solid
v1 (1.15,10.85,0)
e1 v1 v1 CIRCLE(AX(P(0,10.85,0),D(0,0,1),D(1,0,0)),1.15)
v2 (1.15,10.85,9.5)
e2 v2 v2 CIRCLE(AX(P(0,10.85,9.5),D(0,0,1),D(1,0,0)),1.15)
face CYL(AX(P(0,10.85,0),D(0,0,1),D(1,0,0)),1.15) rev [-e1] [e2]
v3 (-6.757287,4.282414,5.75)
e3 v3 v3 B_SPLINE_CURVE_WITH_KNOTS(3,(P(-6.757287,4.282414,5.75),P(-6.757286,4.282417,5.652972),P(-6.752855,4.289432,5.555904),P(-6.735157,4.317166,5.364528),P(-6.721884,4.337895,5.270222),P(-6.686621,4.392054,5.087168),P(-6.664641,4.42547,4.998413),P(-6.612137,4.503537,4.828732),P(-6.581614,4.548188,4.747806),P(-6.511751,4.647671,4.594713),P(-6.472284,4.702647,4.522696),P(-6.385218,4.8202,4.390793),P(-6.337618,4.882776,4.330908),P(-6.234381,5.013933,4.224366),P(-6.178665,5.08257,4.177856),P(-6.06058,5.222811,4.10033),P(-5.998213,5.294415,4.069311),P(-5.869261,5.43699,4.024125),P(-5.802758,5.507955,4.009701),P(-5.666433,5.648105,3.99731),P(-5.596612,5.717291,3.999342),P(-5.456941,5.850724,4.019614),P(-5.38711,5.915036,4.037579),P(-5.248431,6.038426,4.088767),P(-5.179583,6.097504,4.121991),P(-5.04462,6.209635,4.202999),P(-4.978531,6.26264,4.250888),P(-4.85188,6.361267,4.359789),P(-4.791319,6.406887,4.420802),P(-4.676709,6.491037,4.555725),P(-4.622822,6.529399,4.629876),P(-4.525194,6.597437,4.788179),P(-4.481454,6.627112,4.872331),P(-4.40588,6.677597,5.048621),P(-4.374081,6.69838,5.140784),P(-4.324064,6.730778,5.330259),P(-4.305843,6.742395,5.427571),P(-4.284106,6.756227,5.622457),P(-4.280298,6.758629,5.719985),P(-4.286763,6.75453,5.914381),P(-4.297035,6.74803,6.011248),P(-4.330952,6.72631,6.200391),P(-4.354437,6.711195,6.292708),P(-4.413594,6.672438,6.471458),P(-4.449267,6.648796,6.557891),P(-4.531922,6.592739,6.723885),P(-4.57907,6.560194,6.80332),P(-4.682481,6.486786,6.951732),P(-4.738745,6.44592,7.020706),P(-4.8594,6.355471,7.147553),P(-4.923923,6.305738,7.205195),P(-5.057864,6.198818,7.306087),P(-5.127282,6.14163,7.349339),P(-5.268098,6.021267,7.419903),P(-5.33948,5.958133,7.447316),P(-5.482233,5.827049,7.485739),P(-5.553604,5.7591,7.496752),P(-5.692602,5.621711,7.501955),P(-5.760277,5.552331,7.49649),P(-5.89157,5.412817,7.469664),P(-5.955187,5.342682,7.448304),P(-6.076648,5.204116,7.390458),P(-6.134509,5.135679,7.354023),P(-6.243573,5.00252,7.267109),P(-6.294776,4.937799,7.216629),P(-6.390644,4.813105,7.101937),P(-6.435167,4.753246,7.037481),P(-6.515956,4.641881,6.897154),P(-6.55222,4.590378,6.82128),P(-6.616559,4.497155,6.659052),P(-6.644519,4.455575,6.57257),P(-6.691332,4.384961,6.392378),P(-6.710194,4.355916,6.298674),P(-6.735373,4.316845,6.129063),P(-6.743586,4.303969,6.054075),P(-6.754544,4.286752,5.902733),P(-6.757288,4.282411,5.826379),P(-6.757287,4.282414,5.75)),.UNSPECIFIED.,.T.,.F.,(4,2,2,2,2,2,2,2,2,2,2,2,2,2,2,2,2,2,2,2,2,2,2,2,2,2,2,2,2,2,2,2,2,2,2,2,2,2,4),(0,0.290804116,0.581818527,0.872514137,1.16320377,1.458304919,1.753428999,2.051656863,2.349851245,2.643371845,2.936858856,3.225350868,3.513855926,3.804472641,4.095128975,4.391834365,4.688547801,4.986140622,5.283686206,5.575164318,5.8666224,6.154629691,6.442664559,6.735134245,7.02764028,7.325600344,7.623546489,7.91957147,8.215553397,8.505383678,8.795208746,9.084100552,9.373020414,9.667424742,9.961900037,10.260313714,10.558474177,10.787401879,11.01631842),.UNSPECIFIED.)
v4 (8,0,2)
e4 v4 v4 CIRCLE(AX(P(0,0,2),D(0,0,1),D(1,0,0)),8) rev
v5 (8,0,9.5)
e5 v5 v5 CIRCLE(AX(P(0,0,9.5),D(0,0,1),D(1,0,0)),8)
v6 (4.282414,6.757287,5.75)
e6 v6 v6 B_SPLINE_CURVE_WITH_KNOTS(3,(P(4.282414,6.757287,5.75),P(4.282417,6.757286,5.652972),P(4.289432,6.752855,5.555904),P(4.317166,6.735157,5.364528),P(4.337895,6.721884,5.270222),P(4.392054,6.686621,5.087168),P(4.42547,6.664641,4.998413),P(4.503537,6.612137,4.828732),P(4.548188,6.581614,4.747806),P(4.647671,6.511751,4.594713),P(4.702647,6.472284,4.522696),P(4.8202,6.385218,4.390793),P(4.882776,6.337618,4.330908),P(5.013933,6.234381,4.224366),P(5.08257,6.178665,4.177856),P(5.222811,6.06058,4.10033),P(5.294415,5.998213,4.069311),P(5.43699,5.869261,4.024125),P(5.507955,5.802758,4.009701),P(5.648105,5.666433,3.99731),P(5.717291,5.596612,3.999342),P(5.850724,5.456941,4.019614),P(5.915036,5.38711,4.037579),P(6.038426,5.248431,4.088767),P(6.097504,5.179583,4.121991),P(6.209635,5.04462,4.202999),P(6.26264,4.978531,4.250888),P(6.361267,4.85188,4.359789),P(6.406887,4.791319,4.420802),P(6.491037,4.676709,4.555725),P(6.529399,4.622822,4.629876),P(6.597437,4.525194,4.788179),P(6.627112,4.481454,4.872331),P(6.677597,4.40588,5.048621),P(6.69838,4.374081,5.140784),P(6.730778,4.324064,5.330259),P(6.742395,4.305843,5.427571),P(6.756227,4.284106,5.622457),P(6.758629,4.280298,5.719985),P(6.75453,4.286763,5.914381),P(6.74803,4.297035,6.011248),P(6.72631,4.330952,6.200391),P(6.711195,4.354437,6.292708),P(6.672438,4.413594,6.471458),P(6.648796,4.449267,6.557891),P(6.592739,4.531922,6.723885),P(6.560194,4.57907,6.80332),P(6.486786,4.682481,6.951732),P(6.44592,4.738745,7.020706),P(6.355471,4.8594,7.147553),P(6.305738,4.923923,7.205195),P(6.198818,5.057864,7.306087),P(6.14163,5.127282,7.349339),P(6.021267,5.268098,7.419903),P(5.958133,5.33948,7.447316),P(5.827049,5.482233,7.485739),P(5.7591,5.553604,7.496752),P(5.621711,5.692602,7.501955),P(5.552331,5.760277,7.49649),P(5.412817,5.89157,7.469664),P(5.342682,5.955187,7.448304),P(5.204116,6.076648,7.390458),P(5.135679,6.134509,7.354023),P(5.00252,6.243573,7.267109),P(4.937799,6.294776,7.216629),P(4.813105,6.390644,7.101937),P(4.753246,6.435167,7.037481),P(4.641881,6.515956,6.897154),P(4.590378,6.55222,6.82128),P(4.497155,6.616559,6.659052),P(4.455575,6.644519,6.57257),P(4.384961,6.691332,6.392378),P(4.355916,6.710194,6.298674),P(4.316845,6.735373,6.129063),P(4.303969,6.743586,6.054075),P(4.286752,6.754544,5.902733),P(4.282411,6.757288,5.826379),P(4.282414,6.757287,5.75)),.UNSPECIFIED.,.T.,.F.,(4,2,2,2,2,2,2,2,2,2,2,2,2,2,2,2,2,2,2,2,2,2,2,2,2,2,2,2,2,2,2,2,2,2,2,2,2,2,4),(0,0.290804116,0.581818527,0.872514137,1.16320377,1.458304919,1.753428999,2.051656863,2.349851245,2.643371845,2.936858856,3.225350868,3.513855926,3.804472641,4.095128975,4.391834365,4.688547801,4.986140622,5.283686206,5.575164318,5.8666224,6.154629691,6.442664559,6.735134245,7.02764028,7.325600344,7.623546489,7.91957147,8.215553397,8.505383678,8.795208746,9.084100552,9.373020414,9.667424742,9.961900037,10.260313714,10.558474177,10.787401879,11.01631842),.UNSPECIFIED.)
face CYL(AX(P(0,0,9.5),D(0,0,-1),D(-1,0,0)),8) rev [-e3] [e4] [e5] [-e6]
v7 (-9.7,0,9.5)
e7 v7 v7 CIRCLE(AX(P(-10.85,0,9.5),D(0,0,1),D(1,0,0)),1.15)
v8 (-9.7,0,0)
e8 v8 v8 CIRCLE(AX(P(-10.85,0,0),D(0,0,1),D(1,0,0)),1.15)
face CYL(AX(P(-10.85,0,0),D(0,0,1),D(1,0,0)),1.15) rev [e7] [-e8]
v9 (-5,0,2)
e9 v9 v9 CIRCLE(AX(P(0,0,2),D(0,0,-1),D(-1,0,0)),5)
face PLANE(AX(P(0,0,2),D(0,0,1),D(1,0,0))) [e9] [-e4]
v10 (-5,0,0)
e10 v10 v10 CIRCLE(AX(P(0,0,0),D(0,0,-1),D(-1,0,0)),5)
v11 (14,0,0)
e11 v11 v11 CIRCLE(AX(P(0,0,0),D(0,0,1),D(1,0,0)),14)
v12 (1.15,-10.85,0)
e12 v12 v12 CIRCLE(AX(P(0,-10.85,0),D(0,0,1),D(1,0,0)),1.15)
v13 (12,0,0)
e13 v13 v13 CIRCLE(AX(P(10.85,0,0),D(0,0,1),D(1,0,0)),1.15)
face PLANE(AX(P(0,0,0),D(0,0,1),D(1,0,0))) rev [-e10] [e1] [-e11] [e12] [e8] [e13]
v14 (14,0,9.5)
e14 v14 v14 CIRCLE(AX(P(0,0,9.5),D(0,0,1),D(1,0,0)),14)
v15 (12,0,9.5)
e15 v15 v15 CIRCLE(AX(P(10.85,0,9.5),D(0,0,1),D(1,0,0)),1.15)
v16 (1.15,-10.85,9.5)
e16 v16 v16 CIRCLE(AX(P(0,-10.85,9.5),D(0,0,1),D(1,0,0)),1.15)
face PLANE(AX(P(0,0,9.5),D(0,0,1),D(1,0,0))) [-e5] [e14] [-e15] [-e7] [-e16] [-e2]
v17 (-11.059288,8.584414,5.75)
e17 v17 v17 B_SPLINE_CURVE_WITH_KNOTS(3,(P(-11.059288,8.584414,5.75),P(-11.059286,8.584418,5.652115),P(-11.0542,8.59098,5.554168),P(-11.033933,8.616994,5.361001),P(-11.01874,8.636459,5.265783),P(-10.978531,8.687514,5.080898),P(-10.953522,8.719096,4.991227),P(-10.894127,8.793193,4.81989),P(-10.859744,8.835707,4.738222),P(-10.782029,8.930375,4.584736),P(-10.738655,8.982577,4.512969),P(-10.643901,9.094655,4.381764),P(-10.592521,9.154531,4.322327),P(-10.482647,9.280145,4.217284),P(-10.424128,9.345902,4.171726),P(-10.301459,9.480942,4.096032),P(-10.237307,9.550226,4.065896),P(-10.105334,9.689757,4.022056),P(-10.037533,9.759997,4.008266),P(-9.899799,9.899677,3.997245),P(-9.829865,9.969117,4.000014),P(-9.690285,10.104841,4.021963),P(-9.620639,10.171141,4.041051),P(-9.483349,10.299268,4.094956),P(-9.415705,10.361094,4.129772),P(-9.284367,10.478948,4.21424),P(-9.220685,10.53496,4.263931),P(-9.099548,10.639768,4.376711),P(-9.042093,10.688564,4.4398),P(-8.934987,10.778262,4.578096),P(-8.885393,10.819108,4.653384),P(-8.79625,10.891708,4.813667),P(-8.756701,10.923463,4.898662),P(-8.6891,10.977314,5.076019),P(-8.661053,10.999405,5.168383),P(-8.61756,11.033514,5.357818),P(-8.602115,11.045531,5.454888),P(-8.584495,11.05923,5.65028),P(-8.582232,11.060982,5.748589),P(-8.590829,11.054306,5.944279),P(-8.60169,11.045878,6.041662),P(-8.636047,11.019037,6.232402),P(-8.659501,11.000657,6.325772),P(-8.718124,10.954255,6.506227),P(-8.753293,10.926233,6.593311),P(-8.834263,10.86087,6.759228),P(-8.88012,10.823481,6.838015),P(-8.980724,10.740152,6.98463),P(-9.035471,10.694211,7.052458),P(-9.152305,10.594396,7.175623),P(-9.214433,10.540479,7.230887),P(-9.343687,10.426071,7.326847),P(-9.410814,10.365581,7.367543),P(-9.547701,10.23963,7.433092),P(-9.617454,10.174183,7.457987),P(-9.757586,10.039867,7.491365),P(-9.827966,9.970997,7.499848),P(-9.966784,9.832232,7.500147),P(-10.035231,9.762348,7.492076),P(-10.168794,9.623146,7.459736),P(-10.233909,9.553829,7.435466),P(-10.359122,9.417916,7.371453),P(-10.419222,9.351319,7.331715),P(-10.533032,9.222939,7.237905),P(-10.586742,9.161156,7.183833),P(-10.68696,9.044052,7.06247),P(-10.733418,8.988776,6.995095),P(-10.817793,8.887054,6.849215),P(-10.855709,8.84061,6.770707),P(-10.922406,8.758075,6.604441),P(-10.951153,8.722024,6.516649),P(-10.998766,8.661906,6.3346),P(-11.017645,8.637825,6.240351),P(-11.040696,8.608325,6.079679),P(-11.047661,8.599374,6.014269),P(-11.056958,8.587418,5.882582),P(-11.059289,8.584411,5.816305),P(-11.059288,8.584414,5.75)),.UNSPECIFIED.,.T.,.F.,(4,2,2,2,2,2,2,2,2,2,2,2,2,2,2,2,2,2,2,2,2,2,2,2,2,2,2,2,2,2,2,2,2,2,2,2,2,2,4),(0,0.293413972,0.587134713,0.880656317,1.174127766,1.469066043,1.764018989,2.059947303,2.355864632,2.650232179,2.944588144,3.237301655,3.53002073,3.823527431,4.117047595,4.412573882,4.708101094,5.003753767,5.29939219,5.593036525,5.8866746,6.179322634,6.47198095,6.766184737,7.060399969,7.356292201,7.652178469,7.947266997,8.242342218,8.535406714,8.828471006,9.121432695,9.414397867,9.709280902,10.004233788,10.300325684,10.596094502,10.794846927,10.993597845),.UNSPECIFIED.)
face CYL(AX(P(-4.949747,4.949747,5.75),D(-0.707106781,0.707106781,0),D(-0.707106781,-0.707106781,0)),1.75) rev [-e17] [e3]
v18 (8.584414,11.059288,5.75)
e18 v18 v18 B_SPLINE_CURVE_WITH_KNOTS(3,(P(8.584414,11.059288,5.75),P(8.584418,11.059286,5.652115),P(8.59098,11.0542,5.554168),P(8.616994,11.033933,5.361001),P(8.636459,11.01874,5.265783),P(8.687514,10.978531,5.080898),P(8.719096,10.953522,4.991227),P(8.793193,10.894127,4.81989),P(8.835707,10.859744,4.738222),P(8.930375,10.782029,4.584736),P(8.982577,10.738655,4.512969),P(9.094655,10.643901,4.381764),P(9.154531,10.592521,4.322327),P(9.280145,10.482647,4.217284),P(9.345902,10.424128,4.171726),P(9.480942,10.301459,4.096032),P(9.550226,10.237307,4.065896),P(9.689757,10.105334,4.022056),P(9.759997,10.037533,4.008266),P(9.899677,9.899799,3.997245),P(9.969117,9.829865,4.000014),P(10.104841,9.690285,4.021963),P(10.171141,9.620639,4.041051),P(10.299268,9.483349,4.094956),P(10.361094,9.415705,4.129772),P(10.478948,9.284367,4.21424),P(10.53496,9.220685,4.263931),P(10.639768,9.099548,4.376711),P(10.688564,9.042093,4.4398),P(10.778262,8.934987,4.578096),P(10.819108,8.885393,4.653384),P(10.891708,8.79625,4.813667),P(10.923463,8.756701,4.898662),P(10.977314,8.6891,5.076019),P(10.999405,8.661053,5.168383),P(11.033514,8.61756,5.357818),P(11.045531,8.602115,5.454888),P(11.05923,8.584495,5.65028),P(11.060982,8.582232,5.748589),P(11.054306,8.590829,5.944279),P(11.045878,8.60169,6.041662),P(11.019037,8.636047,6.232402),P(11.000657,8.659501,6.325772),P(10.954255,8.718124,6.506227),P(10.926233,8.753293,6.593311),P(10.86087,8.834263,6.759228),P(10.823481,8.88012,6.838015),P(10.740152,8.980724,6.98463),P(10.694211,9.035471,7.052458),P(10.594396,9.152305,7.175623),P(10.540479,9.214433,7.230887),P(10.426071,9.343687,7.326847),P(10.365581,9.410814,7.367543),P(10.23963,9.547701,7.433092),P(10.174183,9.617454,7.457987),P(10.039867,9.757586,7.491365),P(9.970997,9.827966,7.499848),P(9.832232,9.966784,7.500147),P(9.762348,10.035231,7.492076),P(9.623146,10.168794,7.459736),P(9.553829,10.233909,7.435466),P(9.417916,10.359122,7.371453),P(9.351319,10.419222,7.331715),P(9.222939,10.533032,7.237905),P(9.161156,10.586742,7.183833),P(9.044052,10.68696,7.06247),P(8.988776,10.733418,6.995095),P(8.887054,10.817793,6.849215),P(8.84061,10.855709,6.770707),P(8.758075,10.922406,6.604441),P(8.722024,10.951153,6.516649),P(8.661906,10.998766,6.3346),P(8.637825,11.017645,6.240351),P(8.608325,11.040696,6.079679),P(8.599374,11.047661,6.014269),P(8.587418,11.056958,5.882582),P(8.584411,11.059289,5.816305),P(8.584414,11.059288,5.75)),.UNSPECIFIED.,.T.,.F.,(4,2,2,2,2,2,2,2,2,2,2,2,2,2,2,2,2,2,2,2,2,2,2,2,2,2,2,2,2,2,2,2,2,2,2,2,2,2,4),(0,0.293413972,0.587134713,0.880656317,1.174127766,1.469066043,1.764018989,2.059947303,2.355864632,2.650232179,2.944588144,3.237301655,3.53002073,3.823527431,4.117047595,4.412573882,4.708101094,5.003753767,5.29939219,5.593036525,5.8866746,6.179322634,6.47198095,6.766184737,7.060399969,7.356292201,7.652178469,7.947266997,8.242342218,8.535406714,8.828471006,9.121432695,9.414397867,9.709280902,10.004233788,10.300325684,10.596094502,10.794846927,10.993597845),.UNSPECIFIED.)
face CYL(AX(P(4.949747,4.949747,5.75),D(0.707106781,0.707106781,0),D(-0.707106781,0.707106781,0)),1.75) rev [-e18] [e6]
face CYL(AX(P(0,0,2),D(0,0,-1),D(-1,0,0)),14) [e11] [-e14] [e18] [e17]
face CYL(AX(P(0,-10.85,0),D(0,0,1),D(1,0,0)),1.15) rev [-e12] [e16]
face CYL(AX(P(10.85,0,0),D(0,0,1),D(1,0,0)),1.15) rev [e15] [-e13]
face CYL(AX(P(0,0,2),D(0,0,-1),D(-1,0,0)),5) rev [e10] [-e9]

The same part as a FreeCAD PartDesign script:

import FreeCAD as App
import Part
import Sketcher

doc = App.newDocument("Part")
body = doc.addObject("PartDesign::Body", "Body")

# Sketch on XY plane
sketch1 = doc.addObject("Sketcher::SketchObject", "Sketch")
body.addObject(sketch1)
sketch1.AttachmentSupport = (doc.XY_Plane, [""])
sketch1.MapMode = "FlatFace"
sketch1.addGeometry(Part.Circle(App.Vector(0, 0, 0), App.Vector(0, 0, 1), 14), False)
sketch1.addConstraint([
    Sketcher.Constraint("Coincident", 0, 3, -1, 1),
    Sketcher.Constraint("Diameter", 0, 28.0),
])
pad1 = doc.addObject("PartDesign::Pad", "Pad")
body.addObject(pad1)
pad1.Profile = sketch1
pad1.Length = 2

# Sketch on XY plane
sketch2 = doc.addObject("Sketcher::SketchObject", "Sketch001")
body.addObject(sketch2)
sketch2.AttachmentSupport = (doc.XY_Plane, [""])
sketch2.MapMode = "FlatFace"
sketch2.AttachmentOffset = App.Placement(App.Vector(0, 0, 2), App.Rotation())
sketch2.addGeometry([
    Part.Circle(App.Vector(0, 0, 0), App.Vector(0, 0, 1), 14),
    Part.Circle(App.Vector(0, 0, 0), App.Vector(0, 0, 1), 8),
], False)
sketch2.addConstraint([
    Sketcher.Constraint("Coincident", 0, 3, -1, 1),
    Sketcher.Constraint("Coincident", 1, 3, -1, 1),
    Sketcher.Constraint("Diameter", 0, 28.0),
    Sketcher.Constraint("Diameter", 1, 16.0),
])
pad2 = doc.addObject("PartDesign::Pad", "Pad001")
body.addObject(pad2)
pad2.Profile = sketch2
pad2.Length = 7.5

# Sketch on XY plane
sketch3 = doc.addObject("Sketcher::SketchObject", "Sketch002")
body.addObject(sketch3)
sketch3.AttachmentSupport = (doc.XY_Plane, [""])
sketch3.MapMode = "FlatFace"
sketch3.addGeometry(Part.Circle(App.Vector(0, 0, 0), App.Vector(0, 0, 1), 5), False)
sketch3.addConstraint([
    Sketcher.Constraint("Coincident", 0, 3, -1, 1),
    Sketcher.Constraint("Diameter", 0, 10.0),
])
pocket1 = doc.addObject("PartDesign::Pocket", "Pocket")
body.addObject(pocket1)
pocket1.Profile = sketch3
pocket1.Length = 2
pocket1.Reversed = True

# Sketch on XY plane
sketch4 = doc.addObject("Sketcher::SketchObject", "Sketch003")
body.addObject(sketch4)
sketch4.AttachmentSupport = (doc.XY_Plane, [""])
sketch4.MapMode = "FlatFace"
sketch4.AttachmentOffset = App.Placement(App.Vector(0, 0, 9.5), App.Rotation())
sketch4.addGeometry([
    Part.Circle(App.Vector(0, 10.8, 0), App.Vector(0, 0, 1), 1.1),
    Part.Circle(App.Vector(10.8, 0, 0), App.Vector(0, 0, 1), 1.1),
    Part.Circle(App.Vector(0, -10.8, 0), App.Vector(0, 0, 1), 1.1),
    Part.Circle(App.Vector(-10.8, 0, 0), App.Vector(0, 0, 1), 1.1),
], False)
sketch4.addConstraint([
    Sketcher.Constraint("Equal", 0, 1),
    Sketcher.Constraint("Equal", 1, 2),
    Sketcher.Constraint("Equal", 2, 3),
    Sketcher.Constraint("Symmetric", 0, 3, 2, 3, -1, 1),
    Sketcher.Constraint("Symmetric", 1, 3, 3, 3, -1, 1),
    Sketcher.Constraint("PointOnObject", 0, 3, -2),
    Sketcher.Constraint("PointOnObject", 1, 3, -1),
    Sketcher.Constraint("Diameter", 0, 2.3),
    Sketcher.Constraint("DistanceY", 2, 3, 0, 3, 21.7),
    Sketcher.Constraint("DistanceX", 3, 3, 1, 3, 21.7),
])
pocket2 = doc.addObject("PartDesign::Pocket", "Pocket001")
body.addObject(pocket2)
pocket2.Profile = sketch4
pocket2.Type = "ThroughAll"

# Sketch on an angled plane
sketch5 = doc.addObject("Sketcher::SketchObject", "Sketch004")
body.addObject(sketch5)
sketch5.Placement = App.Placement(App.Vector(9.899495, 9.899495, 0), App.Rotation(App.Vector(0.707106781, -0.707106781, 0), App.Vector(0, 0, -0.999999999), App.Vector(0.707106781, 0.707106781, 0), "ZXY"))
sketch5.addGeometry(Part.Circle(App.Vector(0, -5.7, 0), App.Vector(0, 0, 1), 1.8), False)
sketch5.addConstraint([
    Sketcher.Constraint("PointOnObject", 0, 3, -2),
    Sketcher.Constraint("Diameter", 0, 3.5),
    Sketcher.Constraint("DistanceY", 0, 3, -1, 1, 5.75),
])
pocket3 = doc.addObject("PartDesign::Pocket", "Pocket002")
body.addObject(pocket3)
pocket3.Profile = sketch5
pocket3.Length = 7

# Sketch on an angled plane
sketch6 = doc.addObject("Sketcher::SketchObject", "Sketch005")
body.addObject(sketch6)
sketch6.Placement = App.Placement(App.Vector(-9.899495, 9.899495, 0), App.Rotation(App.Vector(0, 0, 1), App.Vector(0.707106781, 0.707106781, 0), App.Vector(-0.707106781, 0.707106781, 0), "ZXY"))
sketch6.addGeometry(Part.Circle(App.Vector(5.8, 0, 0), App.Vector(0, 0, 1), 1.8), False)
sketch6.addConstraint([
    Sketcher.Constraint("PointOnObject", 0, 3, -1),
    Sketcher.Constraint("Diameter", 0, 3.5),
    Sketcher.Constraint("DistanceX", -1, 1, 0, 3, 5.75),
])
pocket4 = doc.addObject("PartDesign::Pocket", "Pocket003")
body.addObject(pocket4)
pocket4.Profile = sketch6
pocket4.Length = 7

doc.recompute()
